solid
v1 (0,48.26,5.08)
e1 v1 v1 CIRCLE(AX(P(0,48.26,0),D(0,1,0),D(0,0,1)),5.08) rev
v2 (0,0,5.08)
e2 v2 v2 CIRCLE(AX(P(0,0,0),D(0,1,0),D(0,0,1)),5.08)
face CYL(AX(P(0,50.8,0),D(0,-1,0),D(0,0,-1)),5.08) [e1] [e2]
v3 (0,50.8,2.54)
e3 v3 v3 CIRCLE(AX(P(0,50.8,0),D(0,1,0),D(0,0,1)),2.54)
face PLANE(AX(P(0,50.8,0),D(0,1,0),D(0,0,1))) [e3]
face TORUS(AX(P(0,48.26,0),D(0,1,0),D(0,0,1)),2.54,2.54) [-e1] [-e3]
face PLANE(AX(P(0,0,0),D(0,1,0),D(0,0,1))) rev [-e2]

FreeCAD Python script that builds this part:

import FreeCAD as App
import Part
import Sketcher
from FreeCAD import Vector
Q = App.Units.Quantity


def edges_at(feature, points):
    """Names of the edges that pass closest to the given points."""
    edges = feature.Shape.Edges
    near = lambda p: min(range(len(edges)), key=lambda i: edges[i].distToShape(Part.Vertex(*p))[0])
    return sorted({f"Edge{near(p) + 1}" for p in points})

doc = App.newDocument("Part")
body = doc.addObject("PartDesign::Body", "Body")

sketch1 = body.newObject("Sketcher::SketchObject", "Sketch")
sketch1.AttachmentSupport = (doc.getObject("XZ_Plane"), [""])
sketch1.MapMode = "FlatFace"
sketch1.addGeometry(Part.Circle(Vector(0, 0, 0), Vector(0, 0, 1), 5.08), False)
sketch1.addConstraint(Sketcher.Constraint("Coincident", 0, 3, -1, 1))
sketch1.addConstraint(Sketcher.Constraint("Diameter", 0, Q("0.4 in")))
pad1 = body.newObject("PartDesign::Pad", "Pad")
pad1.Profile = sketch1
pad1.Length = Q("2 in")
pad1.Reversed = True
doc.recompute()

fillet = body.newObject("PartDesign::Fillet", "Fillet")
fillet.Base = (pad1, edges_at(pad1, [(-5.08, 50.8, 0)]))
fillet.Radius = Q("0.1 in")

doc.recompute()
